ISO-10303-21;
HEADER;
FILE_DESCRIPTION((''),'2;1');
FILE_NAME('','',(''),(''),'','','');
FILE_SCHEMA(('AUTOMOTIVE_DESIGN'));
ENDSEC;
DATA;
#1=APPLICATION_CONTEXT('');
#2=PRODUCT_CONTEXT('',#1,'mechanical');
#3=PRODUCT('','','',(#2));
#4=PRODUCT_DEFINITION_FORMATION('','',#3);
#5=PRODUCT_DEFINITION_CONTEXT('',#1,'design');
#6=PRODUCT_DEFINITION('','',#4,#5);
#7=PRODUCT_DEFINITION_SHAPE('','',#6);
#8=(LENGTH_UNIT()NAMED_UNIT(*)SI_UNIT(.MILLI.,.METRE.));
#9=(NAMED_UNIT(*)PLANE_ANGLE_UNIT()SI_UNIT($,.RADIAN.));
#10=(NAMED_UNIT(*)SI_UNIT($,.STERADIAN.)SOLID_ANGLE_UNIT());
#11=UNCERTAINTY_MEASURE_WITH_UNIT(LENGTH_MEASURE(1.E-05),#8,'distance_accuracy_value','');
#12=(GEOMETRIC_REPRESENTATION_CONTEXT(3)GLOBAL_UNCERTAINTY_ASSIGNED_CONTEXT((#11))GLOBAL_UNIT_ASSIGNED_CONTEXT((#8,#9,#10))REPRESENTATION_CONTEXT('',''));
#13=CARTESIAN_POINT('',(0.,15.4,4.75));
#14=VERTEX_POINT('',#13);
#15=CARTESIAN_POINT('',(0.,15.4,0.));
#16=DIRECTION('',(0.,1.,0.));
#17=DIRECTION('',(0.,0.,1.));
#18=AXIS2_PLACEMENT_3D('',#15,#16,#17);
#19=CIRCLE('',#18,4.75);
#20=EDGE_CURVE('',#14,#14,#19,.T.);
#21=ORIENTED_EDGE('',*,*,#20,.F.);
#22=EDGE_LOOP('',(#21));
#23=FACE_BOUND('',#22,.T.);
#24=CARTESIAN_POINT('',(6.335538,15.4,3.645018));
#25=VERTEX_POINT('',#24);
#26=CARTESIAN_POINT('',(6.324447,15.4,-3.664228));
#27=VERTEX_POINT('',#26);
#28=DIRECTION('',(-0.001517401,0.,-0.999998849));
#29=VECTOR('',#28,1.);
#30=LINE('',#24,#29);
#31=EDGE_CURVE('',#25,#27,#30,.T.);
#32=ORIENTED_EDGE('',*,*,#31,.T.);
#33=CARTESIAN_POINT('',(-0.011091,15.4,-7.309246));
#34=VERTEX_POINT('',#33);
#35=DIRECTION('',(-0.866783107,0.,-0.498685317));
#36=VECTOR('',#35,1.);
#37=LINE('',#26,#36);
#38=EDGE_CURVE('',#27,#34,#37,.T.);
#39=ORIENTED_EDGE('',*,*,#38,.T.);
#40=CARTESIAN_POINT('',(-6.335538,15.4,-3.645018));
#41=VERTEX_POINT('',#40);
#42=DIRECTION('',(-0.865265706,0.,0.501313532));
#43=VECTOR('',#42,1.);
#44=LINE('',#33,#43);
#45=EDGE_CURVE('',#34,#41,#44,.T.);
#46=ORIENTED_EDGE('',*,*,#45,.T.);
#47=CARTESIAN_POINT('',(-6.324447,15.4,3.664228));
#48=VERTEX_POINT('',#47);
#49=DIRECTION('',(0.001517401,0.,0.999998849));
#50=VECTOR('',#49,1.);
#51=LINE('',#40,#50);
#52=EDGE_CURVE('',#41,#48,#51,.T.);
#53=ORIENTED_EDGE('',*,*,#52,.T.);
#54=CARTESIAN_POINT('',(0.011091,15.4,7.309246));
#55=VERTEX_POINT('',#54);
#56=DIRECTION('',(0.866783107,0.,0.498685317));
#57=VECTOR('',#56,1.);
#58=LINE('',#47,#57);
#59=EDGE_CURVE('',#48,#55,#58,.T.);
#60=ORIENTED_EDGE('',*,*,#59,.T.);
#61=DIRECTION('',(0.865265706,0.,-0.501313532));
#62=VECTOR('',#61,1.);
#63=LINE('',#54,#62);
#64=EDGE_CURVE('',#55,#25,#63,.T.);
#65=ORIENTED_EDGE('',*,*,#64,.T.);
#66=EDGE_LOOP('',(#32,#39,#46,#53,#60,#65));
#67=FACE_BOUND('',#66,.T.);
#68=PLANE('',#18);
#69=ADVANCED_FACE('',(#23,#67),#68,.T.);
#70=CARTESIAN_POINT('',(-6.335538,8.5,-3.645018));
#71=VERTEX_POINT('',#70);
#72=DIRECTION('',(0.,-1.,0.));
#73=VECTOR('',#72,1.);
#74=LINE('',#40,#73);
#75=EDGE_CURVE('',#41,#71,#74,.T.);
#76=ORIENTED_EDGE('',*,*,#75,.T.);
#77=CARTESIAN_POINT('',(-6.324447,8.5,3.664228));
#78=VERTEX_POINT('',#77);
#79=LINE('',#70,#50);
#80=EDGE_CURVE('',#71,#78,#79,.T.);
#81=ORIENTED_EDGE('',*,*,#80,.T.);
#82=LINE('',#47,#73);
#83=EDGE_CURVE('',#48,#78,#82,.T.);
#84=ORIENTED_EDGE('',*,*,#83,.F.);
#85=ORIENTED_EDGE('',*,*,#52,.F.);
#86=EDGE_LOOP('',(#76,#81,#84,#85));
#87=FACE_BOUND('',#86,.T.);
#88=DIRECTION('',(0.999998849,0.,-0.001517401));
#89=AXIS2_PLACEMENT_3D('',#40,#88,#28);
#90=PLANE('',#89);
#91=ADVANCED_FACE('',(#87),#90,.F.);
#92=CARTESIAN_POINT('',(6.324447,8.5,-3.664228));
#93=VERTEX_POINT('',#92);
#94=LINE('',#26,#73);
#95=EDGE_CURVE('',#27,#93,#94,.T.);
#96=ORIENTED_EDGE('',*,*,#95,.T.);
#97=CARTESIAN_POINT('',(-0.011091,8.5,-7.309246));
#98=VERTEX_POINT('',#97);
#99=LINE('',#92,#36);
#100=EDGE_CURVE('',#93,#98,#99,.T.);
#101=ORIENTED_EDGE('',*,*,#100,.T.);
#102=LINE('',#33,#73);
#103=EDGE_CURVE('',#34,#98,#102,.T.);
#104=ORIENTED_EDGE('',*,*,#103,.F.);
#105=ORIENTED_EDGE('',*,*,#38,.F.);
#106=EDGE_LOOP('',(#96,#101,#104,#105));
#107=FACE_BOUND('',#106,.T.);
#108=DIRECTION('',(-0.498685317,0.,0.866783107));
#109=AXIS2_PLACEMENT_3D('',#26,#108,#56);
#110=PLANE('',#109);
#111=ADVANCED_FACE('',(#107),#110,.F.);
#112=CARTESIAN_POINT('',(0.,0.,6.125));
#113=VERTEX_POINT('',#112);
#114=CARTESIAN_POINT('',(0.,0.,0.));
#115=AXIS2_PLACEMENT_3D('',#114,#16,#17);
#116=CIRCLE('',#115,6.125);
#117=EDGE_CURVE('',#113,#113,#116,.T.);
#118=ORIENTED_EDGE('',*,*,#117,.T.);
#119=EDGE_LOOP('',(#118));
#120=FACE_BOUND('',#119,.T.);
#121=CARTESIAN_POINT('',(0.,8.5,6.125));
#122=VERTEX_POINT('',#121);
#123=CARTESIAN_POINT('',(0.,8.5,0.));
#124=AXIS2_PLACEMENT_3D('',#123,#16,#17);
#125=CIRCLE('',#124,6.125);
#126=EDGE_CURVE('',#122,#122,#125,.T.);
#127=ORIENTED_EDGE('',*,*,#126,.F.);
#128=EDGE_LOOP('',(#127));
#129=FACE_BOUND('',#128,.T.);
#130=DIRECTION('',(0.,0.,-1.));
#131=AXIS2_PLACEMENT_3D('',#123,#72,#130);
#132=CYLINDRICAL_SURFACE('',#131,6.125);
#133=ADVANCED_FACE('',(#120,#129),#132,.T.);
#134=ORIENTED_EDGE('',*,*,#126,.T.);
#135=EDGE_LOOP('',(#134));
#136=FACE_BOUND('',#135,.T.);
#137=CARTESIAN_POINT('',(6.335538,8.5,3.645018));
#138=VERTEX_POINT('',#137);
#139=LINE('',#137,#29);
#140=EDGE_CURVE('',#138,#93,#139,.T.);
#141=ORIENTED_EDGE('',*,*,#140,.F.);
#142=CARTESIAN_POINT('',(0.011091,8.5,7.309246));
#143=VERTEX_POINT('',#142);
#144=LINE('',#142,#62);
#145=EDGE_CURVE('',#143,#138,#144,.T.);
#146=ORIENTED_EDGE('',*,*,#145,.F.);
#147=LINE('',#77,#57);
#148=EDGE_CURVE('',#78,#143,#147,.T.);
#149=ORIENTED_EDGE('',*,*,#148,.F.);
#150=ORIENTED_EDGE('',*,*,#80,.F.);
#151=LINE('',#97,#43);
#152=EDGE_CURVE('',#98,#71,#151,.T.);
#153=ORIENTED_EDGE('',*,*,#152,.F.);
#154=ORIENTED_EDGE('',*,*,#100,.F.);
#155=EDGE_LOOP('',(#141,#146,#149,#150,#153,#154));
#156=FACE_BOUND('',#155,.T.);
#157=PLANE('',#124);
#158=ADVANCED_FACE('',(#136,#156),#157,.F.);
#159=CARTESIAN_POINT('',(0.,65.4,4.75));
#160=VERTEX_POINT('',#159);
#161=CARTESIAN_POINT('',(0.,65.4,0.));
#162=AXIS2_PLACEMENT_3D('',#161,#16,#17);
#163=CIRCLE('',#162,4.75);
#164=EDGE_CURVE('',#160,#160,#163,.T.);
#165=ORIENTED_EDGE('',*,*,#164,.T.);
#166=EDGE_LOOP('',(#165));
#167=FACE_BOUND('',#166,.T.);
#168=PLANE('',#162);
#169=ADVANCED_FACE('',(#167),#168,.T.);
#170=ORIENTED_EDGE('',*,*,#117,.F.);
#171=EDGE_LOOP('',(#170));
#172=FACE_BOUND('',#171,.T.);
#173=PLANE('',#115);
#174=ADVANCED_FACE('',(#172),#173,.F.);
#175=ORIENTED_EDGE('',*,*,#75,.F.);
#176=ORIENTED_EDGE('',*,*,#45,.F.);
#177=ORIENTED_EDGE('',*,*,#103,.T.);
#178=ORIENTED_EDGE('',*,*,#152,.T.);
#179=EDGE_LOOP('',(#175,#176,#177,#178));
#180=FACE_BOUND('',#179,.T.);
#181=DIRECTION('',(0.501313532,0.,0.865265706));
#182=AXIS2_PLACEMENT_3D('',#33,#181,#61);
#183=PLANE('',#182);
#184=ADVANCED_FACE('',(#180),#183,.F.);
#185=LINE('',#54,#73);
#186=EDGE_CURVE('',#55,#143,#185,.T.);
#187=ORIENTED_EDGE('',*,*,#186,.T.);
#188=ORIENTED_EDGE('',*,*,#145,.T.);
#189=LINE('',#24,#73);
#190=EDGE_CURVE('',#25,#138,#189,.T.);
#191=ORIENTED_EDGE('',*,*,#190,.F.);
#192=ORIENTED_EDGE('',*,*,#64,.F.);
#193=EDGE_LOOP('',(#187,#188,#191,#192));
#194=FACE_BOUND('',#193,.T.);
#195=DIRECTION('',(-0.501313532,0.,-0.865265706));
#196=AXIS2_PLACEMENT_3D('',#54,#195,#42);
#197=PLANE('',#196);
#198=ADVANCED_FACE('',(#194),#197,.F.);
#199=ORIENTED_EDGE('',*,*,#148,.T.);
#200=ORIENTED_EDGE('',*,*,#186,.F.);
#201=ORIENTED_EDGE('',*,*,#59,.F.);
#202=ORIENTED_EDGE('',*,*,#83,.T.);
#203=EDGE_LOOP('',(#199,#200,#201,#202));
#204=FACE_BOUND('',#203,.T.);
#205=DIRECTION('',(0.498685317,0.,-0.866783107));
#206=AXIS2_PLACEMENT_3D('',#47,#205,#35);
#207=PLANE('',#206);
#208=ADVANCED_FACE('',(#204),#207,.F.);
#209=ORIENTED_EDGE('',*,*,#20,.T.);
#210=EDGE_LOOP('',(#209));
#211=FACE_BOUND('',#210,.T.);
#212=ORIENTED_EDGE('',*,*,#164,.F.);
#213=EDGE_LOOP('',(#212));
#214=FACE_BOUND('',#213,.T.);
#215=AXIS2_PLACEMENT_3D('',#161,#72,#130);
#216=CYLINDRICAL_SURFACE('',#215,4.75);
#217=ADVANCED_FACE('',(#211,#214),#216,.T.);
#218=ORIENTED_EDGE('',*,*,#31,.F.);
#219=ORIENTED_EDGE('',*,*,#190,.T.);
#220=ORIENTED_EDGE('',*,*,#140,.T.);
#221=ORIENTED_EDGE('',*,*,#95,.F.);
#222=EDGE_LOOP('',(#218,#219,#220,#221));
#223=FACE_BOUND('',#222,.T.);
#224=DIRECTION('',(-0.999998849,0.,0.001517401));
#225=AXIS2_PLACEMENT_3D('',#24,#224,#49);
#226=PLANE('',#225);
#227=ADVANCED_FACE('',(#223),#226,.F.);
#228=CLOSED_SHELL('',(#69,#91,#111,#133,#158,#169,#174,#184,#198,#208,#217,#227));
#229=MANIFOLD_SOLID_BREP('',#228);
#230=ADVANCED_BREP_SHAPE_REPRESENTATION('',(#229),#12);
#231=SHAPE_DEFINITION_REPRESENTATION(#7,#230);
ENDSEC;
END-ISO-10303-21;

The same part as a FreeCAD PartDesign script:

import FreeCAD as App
import Part
import Sketcher


def add_polygon(sketch, points):
    """Adds a closed chain of lines whose ends are joined by coincident constraints."""
    first, n = sketch.GeometryCount, len(points)
    for a, b in zip(points, points[1:] + points[:1]):
        sketch.addGeometry(Part.LineSegment(App.Vector(*a, 0), App.Vector(*b, 0)), False)
    for i in range(n):
        sketch.addConstraint(Sketcher.Constraint("Coincident", first + i, 2, first + (i + 1) % n, 1))

doc = App.newDocument("Part")
params = doc.addObject("Spreadsheet::Sheet", "Params")
for row, (alias, value) in enumerate([
    ("sketch1_diameter", "12.25 mm"),
    ("pad1_length", "8.5 mm"),
    ("pad2_length", "6.9 mm"),
    ("sketch3_diameter", "9.5 mm"),
    ("pad3_length", "50 mm"),
], start=1):
    params.set(f"A{row}", alias)
    params.set(f"B{row}", "=" + value)
    params.setAlias(f"B{row}", alias)

body = doc.addObject("PartDesign::Body", "Body")

sketch1 = body.newObject("Sketcher::SketchObject", "Sketch")
sketch1.AttachmentSupport = (doc.getObject("XZ_Plane"), [""])
sketch1.MapMode = "FlatFace"
sketch1.addGeometry(Part.Circle(App.Vector(0, 0, 0), App.Vector(0, 0, 1), 6), False)
sketch1.addConstraint([
    Sketcher.Constraint("Coincident", 0, 3, -1, 1),
    Sketcher.Constraint("Diameter", 0, 12.25),
])
sketch1.setExpression("Constraints[1]", "Params.sketch1_diameter")
pad1 = body.newObject("PartDesign::Pad", "Pad")
pad1.Profile = sketch1
pad1.setExpression("Length", "Params.pad1_length")
pad1.Reversed = True

sketch2 = body.newObject("Sketcher::SketchObject", "Sketch001")
sketch2.AttachmentSupport = (doc.getObject("XZ_Plane"), [""])
sketch2.MapMode = "FlatFace"
sketch2.AttachmentOffset = App.Placement(App.Vector(0, 0, -8.5), App.Rotation())
add_polygon(sketch2, [(6, 4), (6, -4), (0, -7), (-6, -4), (-6, 4), (0, 7)])
sketch2.addConstraint([
    Sketcher.Constraint("Symmetric", 0, 2, 3, 2, -1, 1),
    Sketcher.Constraint("Symmetric", 1, 2, 4, 2, -1, 1),
    Sketcher.Constraint("Symmetric", 2, 2, 5, 2, -1, 1),
    Sketcher.Constraint("Equal", 0, 1),
    Sketcher.Constraint("Equal", 1, 2),
    Sketcher.Constraint("DistanceY", 0, 2, -1, 1, 3.664228),
    Sketcher.Constraint("DistanceX", 1, 2, -1, 1, 0.011091),
    Sketcher.Constraint("DistanceX", 2, 2, -1, 1, 6.335538),
    Sketcher.Constraint("DistanceX", 1, 2, 0, 2, 6.335538),
])
pad2 = body.newObject("PartDesign::Pad", "Pad001")
pad2.Profile = sketch2
pad2.setExpression("Length", "Params.pad2_length")
pad2.Reversed = True

sketch3 = body.newObject("Sketcher::SketchObject", "Sketch002")
sketch3.AttachmentSupport = (doc.getObject("XZ_Plane"), [""])
sketch3.MapMode = "FlatFace"
sketch3.AttachmentOffset = App.Placement(App.Vector(0, 0, -15.4), App.Rotation())
sketch3.addGeometry(Part.Circle(App.Vector(0, 0, 0), App.Vector(0, 0, 1), 4.8), False)
sketch3.addConstraint([
    Sketcher.Constraint("Coincident", 0, 3, -1, 1),
    Sketcher.Constraint("Diameter", 0, 9.5),
])
sketch3.setExpression("Constraints[1]", "Params.sketch3_diameter")
pad3 = body.newObject("PartDesign::Pad", "Pad002")
pad3.Profile = sketch3
pad3.setExpression("Length", "Params.pad3_length")
pad3.Reversed = True

doc.recompute()
